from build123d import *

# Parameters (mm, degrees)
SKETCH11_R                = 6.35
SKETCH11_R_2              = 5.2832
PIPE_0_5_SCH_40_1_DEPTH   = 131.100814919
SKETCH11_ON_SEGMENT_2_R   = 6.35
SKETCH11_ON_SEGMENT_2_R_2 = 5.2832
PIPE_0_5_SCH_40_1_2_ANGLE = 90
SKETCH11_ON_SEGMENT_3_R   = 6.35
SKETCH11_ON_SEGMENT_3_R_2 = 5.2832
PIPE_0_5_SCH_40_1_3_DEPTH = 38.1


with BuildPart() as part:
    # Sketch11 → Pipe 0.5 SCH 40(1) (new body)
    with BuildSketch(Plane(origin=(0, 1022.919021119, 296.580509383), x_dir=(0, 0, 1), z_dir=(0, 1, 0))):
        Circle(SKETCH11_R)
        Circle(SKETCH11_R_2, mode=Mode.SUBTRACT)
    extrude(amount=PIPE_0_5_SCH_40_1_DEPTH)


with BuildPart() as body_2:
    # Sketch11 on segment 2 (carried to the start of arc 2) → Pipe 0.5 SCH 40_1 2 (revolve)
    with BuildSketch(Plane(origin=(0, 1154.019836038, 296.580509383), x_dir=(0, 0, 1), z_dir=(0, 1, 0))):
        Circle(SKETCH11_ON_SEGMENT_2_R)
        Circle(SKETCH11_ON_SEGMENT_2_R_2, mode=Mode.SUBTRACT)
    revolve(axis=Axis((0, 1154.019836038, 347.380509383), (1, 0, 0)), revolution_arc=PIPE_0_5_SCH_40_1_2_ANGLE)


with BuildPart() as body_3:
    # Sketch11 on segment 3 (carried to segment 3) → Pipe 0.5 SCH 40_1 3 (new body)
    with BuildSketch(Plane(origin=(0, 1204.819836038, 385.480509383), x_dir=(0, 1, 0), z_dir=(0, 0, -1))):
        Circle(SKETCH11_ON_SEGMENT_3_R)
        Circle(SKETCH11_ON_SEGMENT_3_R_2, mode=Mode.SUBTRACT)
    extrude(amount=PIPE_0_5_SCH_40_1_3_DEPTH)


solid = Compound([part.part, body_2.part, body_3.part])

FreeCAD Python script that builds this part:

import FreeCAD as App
import Part
import Sketcher

V = App.Vector
Q = App.Units.Quantity

doc = App.newDocument("Part")
body = doc.addObject("PartDesign::Body", "Body")

# Sketch on XZ plane
sketch1 = body.newObject("Sketcher::SketchObject", "Sketch")
sketch1.AttachmentSupport = (doc.getObject("XZ_Plane"), [""])
sketch1.MapMode = "FlatFace"
sketch1.AttachmentOffset = App.Placement(V(0, 0, -1022.919021), App.Rotation())
sketch1.addGeometry([
    Part.Circle(V(0, 297, 0), V(0, 0, 1), 6),
    Part.Circle(V(0, 297, 0), V(0, 0, 1), 5),
], False)
sketch1.addConstraint([
    Sketcher.Constraint("Coincident", 1, 3, 0, 3),
    Sketcher.Constraint("PointOnObject", 0, 3, -2),
    Sketcher.Constraint("Diameter", 0, Q("0.5 in")),
    Sketcher.Constraint("Diameter", 1, Q("0.416 in")),
    Sketcher.Constraint("DistanceY", -1, 1, 0, 3, 296.580509),
])
pad1 = body.newObject("PartDesign::Pad", "Pad")
pad1.Profile = sketch1
pad1.Length = 131.100815
pad1.Reversed = True
body2 = doc.addObject("PartDesign::Body", "Body001")

# Sketch on XZ plane
sketch2 = body2.newObject("Sketcher::SketchObject", "Sketch001")
sketch2.AttachmentSupport = (doc.getObject("XZ_Plane001"), [""])
sketch2.MapMode = "FlatFace"
sketch2.AttachmentOffset = App.Placement(V(0, 0, -1154.019836), App.Rotation())
sketch2.addGeometry([
    Part.Circle(V(0, 297, 0), V(0, 0, 1), 6),
    Part.Circle(V(0, 297, 0), V(0, 0, 1), 5),
], False)
sketch2.addGeometry(Part.LineSegment(V(0, 347, 0), V(10, 347, 0)), True)  # axis
sketch2.addConstraint([
    Sketcher.Constraint("Horizontal", 2),
    Sketcher.Constraint("Coincident", 1, 3, 0, 3),
    Sketcher.Constraint("PointOnObject", 0, 3, -2),
    Sketcher.Constraint("PointOnObject", 2, 1, -2),
    Sketcher.Constraint("Diameter", 0, Q("0.5 in")),
    Sketcher.Constraint("Diameter", 1, Q("0.416 in")),
    Sketcher.Constraint("DistanceY", 0, 3, 2, 1, Q("2 in")),
    Sketcher.Constraint("DistanceX", 2, 1, 2, 2, 10.0),
    Sketcher.Constraint("DistanceY", -1, 1, 0, 3, 296.580509),
])
revolution = body2.newObject("PartDesign::Revolution", "Revolution")
revolution.Profile = sketch2
revolution.ReferenceAxis = (sketch2, ["Axis0"])
revolution.Angle = 90
body3 = doc.addObject("PartDesign::Body", "Body002")

# Sketch on XY plane
sketch3 = body3.newObject("Sketcher::SketchObject", "Sketch002")
sketch3.AttachmentSupport = (doc.getObject("XY_Plane002"), [""])
sketch3.MapMode = "FlatFace"
sketch3.AttachmentOffset = App.Placement(V(0, 0, 385.480509), App.Rotation())
sketch3.addGeometry([
    Part.Circle(V(0, 1205, 0), V(0, 0, 1), 6),
    Part.Circle(V(0, 1205, 0), V(0, 0, 1), 5),
], False)
sketch3.addConstraint([
    Sketcher.Constraint("Coincident", 1, 3, 0, 3),
    Sketcher.Constraint("PointOnObject", 0, 3, -2),
    Sketcher.Constraint("Diameter", 0, Q("0.5 in")),
    Sketcher.Constraint("Diameter", 1, Q("0.416 in")),
    Sketcher.Constraint("DistanceY", -1, 1, 0, 3, 1204.819836),
])
pad2 = body3.newObject("PartDesign::Pad", "Pad001")
pad2.Profile = sketch3
pad2.Length = Q("1.5 in")
pad2.Reversed = True

doc.recompute()
